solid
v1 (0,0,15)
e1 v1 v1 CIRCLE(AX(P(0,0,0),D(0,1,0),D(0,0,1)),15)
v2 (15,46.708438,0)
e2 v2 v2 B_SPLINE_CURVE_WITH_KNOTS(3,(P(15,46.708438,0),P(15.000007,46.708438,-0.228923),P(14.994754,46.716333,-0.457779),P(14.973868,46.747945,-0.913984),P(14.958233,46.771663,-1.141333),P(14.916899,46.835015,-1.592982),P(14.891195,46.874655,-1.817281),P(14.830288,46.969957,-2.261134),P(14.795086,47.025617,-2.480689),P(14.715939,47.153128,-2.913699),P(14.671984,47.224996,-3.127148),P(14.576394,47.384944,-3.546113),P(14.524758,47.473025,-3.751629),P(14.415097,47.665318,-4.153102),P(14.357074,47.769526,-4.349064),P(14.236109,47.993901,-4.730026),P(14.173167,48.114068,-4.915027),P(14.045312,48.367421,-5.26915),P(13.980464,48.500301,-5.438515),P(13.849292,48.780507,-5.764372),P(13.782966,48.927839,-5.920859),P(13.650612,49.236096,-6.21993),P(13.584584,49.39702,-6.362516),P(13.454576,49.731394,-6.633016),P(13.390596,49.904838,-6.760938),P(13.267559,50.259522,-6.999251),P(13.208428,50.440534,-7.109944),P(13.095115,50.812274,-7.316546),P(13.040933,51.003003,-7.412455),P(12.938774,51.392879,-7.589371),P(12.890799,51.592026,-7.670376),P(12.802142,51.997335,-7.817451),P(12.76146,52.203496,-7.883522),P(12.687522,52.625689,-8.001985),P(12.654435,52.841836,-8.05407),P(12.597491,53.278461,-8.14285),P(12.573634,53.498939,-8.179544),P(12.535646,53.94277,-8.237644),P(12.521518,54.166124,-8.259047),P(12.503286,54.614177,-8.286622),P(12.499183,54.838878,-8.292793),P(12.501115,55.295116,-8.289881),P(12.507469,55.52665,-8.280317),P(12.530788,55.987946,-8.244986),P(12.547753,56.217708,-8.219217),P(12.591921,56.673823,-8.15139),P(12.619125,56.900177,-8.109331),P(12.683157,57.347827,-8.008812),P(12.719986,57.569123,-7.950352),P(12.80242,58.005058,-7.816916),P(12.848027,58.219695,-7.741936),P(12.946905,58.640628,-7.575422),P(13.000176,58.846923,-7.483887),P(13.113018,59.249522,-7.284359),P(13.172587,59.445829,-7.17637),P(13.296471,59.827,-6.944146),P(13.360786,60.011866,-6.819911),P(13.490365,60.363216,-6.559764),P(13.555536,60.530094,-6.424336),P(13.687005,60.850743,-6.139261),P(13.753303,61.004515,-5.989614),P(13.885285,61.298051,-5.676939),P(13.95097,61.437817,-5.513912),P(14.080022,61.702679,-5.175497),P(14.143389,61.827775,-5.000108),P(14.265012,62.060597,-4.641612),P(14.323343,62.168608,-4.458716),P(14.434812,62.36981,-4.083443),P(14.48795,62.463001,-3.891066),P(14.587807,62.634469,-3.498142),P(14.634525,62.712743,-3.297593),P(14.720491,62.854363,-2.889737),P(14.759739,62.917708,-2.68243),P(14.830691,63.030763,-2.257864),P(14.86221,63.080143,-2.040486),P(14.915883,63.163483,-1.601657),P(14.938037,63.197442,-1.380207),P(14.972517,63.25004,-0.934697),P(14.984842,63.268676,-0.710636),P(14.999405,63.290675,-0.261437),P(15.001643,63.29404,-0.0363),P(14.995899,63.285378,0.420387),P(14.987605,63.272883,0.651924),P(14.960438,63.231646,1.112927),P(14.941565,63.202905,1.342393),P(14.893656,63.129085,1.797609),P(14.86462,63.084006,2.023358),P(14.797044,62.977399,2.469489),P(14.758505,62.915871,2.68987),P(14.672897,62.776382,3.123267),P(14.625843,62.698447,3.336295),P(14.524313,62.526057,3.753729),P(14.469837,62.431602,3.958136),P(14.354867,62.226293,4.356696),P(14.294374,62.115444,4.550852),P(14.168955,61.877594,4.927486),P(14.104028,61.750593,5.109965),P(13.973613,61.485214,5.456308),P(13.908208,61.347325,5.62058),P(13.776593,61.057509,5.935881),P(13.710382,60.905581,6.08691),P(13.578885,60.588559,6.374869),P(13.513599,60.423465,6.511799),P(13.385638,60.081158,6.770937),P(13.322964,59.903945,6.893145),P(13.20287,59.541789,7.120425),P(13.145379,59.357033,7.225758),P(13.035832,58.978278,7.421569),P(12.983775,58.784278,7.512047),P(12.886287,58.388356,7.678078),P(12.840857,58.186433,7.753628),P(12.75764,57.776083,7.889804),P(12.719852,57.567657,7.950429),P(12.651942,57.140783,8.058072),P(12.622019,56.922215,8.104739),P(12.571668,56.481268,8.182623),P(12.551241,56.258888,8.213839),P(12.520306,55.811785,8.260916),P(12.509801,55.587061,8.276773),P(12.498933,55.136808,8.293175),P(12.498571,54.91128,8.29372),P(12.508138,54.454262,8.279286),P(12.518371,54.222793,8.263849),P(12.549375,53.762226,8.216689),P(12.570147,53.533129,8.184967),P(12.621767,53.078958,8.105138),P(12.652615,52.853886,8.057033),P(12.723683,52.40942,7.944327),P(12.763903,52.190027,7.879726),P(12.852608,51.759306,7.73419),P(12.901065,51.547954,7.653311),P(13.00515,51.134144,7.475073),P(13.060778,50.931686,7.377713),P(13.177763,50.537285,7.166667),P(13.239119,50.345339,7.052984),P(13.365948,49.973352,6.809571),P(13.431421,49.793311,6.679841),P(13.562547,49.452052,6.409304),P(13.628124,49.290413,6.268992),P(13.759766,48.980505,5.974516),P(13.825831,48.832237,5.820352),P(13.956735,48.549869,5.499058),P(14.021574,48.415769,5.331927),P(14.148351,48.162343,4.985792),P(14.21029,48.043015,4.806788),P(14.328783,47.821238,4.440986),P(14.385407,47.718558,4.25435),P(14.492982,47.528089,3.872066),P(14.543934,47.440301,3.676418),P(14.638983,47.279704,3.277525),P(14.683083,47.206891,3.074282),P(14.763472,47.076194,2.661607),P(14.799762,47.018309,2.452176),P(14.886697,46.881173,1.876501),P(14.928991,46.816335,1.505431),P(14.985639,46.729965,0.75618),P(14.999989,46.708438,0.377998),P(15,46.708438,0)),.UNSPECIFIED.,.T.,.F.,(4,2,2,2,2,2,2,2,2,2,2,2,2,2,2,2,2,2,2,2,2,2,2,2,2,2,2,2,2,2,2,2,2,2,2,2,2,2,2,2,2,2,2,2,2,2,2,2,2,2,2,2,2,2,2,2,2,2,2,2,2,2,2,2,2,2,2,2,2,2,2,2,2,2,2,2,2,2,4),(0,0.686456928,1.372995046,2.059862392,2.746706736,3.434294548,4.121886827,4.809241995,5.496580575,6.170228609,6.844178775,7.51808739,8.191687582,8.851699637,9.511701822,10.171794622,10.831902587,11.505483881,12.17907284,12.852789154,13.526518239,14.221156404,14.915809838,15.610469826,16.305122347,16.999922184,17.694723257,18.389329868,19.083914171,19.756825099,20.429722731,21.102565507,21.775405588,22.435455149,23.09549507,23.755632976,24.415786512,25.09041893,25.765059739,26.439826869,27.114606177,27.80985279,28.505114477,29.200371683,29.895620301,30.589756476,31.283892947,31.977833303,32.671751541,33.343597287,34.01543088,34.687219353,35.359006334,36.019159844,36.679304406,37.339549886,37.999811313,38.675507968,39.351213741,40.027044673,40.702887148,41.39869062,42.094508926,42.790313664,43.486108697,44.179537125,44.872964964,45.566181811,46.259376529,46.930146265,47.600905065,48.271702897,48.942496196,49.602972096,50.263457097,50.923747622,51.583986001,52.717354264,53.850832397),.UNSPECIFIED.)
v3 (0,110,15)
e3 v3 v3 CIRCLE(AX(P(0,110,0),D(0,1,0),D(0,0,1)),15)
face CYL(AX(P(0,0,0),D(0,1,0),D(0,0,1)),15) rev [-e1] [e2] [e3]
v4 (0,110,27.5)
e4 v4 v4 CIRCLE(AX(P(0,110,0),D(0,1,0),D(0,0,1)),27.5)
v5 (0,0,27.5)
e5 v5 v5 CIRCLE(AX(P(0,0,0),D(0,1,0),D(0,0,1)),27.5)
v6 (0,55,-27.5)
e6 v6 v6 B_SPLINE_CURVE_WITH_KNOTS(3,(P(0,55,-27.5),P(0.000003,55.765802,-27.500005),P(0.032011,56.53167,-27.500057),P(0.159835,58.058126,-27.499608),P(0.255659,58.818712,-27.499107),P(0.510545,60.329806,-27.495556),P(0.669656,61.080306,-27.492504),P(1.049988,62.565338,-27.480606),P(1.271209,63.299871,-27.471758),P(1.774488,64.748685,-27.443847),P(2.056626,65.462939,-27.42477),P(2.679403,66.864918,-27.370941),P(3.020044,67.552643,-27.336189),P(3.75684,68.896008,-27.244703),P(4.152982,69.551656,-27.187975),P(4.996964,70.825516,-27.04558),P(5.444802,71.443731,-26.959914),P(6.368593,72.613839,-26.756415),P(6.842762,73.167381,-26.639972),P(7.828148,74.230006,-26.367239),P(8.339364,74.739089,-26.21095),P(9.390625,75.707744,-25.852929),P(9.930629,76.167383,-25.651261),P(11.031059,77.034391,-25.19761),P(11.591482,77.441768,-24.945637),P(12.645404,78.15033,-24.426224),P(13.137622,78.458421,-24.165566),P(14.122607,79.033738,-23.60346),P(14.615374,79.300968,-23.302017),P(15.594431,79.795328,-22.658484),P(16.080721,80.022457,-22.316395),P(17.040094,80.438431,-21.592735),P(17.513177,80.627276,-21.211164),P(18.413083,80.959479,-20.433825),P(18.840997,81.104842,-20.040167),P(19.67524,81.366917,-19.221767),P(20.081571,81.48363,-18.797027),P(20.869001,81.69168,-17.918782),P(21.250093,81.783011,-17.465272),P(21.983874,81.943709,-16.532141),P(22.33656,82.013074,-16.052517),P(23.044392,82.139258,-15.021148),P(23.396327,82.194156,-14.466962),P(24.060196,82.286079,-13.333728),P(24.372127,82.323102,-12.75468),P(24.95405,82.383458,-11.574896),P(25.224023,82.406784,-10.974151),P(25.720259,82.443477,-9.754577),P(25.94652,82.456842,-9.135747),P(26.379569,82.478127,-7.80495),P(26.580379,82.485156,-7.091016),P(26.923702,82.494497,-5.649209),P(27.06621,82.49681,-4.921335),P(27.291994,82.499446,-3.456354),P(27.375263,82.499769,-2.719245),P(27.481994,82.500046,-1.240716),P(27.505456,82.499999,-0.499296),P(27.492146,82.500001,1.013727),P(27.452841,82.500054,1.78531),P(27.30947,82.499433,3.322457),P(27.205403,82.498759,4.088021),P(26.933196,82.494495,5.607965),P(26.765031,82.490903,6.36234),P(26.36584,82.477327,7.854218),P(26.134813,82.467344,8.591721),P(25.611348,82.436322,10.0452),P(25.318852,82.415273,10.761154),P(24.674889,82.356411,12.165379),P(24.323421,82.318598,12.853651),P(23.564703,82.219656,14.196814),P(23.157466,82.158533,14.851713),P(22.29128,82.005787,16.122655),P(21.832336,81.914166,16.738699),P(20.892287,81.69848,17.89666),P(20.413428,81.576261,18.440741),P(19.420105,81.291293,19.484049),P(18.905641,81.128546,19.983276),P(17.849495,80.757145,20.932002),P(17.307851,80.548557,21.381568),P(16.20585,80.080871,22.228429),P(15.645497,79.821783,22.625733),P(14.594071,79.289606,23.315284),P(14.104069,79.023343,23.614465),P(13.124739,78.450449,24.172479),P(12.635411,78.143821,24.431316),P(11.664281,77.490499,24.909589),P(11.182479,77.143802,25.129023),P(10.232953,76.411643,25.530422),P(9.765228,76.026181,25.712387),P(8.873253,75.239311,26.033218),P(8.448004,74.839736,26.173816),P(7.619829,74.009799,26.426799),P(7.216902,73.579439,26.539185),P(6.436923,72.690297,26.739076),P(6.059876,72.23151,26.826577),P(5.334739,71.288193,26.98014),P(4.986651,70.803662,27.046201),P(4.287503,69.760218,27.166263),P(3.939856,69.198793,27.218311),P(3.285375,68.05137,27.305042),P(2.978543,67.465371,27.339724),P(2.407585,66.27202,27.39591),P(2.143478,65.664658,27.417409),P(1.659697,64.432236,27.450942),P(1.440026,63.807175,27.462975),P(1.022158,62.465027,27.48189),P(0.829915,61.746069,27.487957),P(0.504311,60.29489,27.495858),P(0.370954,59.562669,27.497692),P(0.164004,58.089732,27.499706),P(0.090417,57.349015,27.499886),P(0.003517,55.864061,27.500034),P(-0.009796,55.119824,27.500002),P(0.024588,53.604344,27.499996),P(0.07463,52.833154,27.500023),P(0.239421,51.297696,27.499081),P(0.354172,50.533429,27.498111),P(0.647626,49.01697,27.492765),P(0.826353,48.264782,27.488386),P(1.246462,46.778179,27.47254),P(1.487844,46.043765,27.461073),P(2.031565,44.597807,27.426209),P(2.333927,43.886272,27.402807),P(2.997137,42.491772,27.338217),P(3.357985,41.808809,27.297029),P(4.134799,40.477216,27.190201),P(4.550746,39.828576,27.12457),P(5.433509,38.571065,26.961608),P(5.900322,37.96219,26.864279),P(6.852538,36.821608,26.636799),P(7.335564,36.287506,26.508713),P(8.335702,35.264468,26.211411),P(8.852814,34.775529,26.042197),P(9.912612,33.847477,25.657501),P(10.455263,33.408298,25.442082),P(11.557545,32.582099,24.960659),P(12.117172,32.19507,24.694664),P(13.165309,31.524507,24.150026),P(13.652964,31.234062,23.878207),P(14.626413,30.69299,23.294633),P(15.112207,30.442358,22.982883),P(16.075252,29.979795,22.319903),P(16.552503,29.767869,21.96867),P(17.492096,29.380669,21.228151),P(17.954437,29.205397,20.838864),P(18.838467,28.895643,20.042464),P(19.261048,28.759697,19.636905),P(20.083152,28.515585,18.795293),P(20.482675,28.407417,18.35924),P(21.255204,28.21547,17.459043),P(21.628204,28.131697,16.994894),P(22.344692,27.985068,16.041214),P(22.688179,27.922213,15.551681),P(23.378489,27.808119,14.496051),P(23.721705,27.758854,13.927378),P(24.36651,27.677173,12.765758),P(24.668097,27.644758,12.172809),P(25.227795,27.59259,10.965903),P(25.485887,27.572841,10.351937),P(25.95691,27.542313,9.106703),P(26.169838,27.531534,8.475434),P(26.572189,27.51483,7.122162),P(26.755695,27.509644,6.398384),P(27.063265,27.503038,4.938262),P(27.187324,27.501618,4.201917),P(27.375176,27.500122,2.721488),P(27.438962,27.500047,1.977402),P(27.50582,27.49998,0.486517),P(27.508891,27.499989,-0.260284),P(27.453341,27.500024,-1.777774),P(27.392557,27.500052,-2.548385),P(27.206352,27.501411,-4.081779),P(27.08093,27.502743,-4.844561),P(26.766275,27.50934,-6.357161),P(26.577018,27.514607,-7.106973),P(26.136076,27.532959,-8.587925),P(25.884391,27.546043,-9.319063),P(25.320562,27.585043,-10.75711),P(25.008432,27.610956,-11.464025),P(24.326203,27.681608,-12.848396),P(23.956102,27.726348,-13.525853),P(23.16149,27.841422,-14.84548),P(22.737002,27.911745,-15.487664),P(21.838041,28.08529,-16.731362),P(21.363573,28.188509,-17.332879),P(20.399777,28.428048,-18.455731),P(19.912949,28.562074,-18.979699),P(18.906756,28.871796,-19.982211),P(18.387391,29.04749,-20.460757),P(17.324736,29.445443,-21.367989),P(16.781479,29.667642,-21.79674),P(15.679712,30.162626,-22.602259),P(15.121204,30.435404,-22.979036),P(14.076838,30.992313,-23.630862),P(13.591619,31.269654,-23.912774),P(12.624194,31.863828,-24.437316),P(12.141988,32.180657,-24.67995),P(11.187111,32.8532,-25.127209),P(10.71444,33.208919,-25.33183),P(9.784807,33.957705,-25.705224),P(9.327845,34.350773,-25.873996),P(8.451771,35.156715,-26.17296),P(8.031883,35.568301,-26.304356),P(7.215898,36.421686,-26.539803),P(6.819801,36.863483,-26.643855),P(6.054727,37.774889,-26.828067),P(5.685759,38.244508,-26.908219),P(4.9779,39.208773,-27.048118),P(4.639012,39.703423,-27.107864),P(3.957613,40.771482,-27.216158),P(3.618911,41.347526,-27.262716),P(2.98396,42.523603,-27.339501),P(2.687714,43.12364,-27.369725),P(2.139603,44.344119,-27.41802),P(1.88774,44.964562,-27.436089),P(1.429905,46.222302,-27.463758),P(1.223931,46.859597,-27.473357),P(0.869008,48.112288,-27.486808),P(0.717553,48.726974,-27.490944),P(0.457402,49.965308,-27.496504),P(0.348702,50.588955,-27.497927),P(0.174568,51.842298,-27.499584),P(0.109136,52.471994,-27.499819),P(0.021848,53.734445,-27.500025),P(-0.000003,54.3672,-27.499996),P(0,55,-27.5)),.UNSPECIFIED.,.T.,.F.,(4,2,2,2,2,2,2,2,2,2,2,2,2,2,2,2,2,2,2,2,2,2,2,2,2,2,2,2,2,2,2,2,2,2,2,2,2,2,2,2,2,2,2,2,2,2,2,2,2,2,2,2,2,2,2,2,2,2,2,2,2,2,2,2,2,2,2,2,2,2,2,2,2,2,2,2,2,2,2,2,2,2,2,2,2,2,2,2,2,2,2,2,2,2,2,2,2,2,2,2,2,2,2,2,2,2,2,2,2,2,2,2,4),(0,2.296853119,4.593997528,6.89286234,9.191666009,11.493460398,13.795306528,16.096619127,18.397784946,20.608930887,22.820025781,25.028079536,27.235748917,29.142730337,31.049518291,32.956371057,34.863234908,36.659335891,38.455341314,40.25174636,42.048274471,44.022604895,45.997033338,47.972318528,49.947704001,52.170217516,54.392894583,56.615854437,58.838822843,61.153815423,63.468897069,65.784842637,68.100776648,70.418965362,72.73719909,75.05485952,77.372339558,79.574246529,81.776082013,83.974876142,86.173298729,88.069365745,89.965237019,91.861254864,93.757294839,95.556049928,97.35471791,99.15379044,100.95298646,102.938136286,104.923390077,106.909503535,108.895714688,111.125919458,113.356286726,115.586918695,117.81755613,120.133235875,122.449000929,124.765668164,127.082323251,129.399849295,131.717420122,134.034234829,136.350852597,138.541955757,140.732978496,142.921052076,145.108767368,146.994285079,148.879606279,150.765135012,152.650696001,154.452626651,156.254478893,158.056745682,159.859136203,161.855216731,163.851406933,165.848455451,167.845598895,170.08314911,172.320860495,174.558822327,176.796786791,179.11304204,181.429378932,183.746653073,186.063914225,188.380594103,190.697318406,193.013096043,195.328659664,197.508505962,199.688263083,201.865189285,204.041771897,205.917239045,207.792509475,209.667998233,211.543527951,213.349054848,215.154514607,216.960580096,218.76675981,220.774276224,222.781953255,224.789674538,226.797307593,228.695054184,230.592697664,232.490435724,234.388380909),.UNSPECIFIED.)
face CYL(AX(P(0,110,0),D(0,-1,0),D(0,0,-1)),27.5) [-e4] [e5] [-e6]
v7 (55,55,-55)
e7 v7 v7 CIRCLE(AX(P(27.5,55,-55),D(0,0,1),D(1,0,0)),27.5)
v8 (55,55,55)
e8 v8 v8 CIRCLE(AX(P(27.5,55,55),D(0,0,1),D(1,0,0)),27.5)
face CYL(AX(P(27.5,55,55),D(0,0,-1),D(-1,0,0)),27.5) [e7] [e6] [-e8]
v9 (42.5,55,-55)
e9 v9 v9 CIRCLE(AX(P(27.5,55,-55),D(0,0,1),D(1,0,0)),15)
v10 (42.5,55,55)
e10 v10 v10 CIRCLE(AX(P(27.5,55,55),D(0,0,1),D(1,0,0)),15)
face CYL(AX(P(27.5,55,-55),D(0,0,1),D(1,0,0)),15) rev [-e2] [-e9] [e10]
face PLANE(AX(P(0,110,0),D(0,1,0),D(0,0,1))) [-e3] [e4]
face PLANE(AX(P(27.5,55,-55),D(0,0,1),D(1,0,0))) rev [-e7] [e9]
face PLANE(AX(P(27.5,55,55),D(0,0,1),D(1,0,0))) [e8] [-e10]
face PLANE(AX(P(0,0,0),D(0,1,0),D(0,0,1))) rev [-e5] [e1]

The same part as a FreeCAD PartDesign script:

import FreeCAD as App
import Part
import Sketcher
Q = App.Units.Quantity

doc = App.newDocument("Part")
body = doc.addObject("PartDesign::Body", "Body")

# Sketch on XZ plane
sketch1 = body.newObject("Sketcher::SketchObject", "Sketch")
sketch1.AttachmentSupport = (doc.getObject("XZ_Plane"), [""])
sketch1.MapMode = "FlatFace"
sketch1.addGeometry(Part.Circle(App.Vector(0, 0, 0), App.Vector(0, 0, 1), 28), False)
sketch1.addConstraint([
    Sketcher.Constraint("Coincident", 0, 3, -1, 1),
    Sketcher.Constraint("Diameter", 0, Q("55 mm")),
])
pad1 = body.newObject("PartDesign::Pad", "Pad")
pad1.Profile = sketch1
pad1.Length = 110
pad1.Reversed = True

# Sketch on XY plane
sketch2 = body.newObject("Sketcher::SketchObject", "Sketch001")
sketch2.AttachmentSupport = (doc.getObject("XY_Plane"), [""])
sketch2.MapMode = "FlatFace"
sketch2.addGeometry(Part.Circle(App.Vector(28, 55, 0), App.Vector(0, 0, 1), 28), False)
sketch2.addConstraint([
    Sketcher.Constraint("Diameter", 0, Q("55 mm")),
    Sketcher.Constraint("DistanceY", -1, 1, 0, 3, Q("55 mm")),
    Sketcher.Constraint("DistanceX", -1, 1, 0, 3, Q("27.5 mm")),
])
pad2 = body.newObject("PartDesign::Pad", "Pad001")
pad2.Profile = sketch2
pad2.Length = 110
pad2.Midplane = True

# Sketch on XZ plane
sketch3 = body.newObject("Sketcher::SketchObject", "Sketch002")
sketch3.AttachmentSupport = (doc.getObject("XZ_Plane"), [""])
sketch3.MapMode = "FlatFace"
sketch3.AttachmentOffset = App.Placement(App.Vector(0, 0, -110), App.Rotation())
sketch3.addGeometry(Part.Circle(App.Vector(0, 0, 0), App.Vector(0, 0, 1), 15), False)
sketch3.addConstraint([
    Sketcher.Constraint("Coincident", 0, 3, -1, 1),
    Sketcher.Constraint("Diameter", 0, Q("30 mm")),
])
pocket1 = body.newObject("PartDesign::Pocket", "Pocket")
pocket1.Profile = sketch3
pocket1.Length = 110
pocket1.Reversed = True

# Sketch on XY plane
sketch4 = body.newObject("Sketcher::SketchObject", "Sketch003")
sketch4.AttachmentSupport = (doc.getObject("XY_Plane"), [""])
sketch4.MapMode = "FlatFace"
sketch4.AttachmentOffset = App.Placement(App.Vector(0, 0, 55), App.Rotation())
sketch4.addGeometry(Part.Circle(App.Vector(28, 55, 0), App.Vector(0, 0, 1), 15), False)
sketch4.addConstraint([
    Sketcher.Constraint("Diameter", 0, Q("30 mm")),
    Sketcher.Constraint("DistanceY", -1, 1, 0, 3, Q("55 mm")),
    Sketcher.Constraint("DistanceX", -1, 1, 0, 3, Q("27.5 mm")),
])
pocket2 = body.newObject("PartDesign::Pocket", "Pocket001")
pocket2.Profile = sketch4
pocket2.Length = 110

doc.recompute()
